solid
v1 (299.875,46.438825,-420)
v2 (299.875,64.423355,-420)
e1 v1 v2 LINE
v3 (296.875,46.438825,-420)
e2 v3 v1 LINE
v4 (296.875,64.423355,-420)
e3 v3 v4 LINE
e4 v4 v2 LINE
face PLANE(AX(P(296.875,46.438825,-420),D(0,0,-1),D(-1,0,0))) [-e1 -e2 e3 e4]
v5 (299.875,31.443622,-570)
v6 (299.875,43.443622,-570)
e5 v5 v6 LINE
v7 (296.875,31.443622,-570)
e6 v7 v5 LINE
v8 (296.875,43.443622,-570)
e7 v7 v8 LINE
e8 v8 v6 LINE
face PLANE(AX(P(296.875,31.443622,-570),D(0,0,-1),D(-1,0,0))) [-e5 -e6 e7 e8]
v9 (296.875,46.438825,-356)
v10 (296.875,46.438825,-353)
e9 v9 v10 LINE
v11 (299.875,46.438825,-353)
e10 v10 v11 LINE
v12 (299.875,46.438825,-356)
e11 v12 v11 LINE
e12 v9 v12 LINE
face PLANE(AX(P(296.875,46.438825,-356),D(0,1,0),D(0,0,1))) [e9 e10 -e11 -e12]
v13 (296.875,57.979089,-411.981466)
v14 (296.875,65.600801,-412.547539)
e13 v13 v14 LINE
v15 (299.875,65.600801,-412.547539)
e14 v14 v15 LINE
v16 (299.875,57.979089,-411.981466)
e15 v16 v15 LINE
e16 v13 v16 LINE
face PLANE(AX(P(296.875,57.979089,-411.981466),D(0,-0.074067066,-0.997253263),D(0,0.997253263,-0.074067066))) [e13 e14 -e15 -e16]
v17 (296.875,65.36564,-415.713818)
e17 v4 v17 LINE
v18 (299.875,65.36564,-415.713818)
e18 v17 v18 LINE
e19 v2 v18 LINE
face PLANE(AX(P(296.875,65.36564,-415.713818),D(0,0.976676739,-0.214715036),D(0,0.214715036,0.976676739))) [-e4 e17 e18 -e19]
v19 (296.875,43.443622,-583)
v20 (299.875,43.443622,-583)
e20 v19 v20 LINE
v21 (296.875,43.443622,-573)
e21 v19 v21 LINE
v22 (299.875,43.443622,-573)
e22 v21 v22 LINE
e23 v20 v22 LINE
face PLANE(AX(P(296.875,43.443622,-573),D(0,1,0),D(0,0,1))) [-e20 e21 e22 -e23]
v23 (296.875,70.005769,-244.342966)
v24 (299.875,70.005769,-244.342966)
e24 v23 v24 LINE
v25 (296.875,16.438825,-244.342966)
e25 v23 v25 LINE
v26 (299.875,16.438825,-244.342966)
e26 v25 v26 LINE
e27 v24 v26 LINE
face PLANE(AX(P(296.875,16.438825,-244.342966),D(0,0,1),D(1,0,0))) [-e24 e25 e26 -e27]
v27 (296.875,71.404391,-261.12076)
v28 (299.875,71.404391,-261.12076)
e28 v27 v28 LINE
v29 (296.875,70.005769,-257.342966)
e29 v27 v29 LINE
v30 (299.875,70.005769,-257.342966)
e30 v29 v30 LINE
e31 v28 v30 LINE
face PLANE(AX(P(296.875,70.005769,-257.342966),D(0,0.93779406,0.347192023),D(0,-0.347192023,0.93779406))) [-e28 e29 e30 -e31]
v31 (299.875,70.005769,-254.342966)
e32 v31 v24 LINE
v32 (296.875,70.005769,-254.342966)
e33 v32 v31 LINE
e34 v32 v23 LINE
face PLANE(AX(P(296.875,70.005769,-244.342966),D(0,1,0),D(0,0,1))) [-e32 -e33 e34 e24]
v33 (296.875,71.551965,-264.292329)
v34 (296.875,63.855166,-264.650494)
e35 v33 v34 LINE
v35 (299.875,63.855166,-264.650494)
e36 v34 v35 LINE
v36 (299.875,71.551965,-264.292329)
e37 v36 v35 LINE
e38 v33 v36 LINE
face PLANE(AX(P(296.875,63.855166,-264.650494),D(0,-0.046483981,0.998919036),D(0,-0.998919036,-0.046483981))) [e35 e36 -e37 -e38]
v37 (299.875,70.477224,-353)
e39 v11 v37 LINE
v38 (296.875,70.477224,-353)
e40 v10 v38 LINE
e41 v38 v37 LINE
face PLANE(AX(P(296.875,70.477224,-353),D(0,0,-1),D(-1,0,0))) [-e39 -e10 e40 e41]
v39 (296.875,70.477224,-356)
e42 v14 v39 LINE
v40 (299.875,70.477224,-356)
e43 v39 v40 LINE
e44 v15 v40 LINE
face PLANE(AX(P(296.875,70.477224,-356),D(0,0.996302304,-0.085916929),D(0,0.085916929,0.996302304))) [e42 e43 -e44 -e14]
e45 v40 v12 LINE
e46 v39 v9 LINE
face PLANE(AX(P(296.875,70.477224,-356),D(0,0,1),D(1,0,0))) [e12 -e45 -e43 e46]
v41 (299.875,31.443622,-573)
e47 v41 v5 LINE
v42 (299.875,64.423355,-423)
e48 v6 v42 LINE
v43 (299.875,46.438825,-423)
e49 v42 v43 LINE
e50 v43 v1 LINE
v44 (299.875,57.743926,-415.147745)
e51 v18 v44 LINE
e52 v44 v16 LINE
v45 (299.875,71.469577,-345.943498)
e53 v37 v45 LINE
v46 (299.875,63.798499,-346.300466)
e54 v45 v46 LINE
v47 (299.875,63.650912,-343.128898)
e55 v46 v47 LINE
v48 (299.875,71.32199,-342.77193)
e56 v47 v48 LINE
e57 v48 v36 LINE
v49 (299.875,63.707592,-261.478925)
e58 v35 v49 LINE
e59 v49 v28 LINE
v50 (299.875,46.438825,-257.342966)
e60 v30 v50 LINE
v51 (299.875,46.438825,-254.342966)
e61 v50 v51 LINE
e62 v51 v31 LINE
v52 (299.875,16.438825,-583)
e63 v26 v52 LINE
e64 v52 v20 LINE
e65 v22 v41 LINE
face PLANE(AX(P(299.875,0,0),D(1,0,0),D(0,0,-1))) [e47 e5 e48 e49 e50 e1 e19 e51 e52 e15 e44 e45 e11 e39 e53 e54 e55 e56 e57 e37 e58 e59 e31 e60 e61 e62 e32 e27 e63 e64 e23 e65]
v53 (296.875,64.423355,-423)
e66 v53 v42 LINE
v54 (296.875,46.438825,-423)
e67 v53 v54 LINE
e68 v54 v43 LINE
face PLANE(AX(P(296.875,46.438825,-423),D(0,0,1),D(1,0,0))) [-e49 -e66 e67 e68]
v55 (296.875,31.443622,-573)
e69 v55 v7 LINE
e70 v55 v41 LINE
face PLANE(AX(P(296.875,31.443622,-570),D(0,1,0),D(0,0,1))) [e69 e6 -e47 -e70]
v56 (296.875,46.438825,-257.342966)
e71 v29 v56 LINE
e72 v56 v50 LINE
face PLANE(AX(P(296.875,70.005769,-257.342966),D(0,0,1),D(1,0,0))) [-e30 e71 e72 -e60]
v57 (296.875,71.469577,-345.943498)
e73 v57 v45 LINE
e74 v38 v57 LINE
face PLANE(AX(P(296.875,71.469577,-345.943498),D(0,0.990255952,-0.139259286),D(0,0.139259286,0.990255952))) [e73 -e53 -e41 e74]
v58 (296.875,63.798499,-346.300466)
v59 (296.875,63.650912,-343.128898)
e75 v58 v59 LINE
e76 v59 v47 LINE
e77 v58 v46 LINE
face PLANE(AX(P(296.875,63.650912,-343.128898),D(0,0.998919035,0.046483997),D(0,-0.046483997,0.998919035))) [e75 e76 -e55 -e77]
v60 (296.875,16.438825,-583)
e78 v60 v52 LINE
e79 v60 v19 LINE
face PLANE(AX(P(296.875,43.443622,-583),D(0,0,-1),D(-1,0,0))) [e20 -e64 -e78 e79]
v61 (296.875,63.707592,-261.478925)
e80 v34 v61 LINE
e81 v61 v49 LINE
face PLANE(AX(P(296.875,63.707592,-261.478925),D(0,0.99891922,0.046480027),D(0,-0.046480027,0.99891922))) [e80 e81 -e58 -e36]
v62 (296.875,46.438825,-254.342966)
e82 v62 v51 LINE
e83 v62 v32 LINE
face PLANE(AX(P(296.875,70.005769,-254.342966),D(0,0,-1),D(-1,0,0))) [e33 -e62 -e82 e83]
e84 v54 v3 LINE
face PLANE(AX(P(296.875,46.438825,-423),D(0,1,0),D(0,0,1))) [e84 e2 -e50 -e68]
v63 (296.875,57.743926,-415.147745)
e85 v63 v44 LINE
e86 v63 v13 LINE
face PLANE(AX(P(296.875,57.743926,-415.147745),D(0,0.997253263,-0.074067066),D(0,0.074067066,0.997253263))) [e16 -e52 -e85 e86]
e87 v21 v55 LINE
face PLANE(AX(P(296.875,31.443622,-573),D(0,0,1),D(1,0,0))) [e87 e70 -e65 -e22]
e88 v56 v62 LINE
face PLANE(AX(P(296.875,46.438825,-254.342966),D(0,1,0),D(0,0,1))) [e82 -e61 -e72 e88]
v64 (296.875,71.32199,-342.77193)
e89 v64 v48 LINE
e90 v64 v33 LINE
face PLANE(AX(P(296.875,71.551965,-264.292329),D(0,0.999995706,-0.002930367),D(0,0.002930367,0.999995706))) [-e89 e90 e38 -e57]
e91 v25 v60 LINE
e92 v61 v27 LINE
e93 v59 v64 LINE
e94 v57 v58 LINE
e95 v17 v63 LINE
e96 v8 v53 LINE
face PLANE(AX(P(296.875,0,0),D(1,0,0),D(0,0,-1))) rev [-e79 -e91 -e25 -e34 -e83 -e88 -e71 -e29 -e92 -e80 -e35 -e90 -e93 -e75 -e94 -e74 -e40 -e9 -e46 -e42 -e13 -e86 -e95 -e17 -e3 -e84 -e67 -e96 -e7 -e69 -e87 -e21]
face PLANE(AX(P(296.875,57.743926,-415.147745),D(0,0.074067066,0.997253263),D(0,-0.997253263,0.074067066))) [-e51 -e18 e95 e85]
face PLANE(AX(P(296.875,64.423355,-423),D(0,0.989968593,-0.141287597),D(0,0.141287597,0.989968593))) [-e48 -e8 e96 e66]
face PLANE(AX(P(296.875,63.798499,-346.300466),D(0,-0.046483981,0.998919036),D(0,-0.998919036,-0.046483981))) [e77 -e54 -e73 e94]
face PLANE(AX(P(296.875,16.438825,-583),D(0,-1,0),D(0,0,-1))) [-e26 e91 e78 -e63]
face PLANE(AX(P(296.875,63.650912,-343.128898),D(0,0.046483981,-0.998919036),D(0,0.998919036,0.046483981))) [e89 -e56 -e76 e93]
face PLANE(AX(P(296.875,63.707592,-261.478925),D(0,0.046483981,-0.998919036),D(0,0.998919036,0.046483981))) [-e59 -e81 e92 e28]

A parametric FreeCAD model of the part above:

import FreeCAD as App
import Part
import Sketcher
Q = App.Units.Quantity

doc = App.newDocument("Part")
body = doc.addObject("PartDesign::Body", "Body")

# Sketch on YZ plane
sketch1 = body.newObject("Sketcher::SketchObject", "Sketch")
sketch1.AttachmentSupport = (doc.getObject("YZ_Plane"), [""])
sketch1.MapMode = "FlatFace"
sketch1.AttachmentOffset = App.Placement(App.Vector(0, 0, 299.875), App.Rotation())
sketch1.addGeometry([
    Part.LineSegment(App.Vector(46.4, -257.3, 0), App.Vector(46.4, -254.3, 0)),  # 0
    Part.LineSegment(App.Vector(46.4, -254.3, 0), App.Vector(70, -254.3, 0)),  # 1
    Part.LineSegment(App.Vector(70, -254.3, 0), App.Vector(70, -244.3, 0)),  # 2
    Part.LineSegment(App.Vector(70, -244.3, 0), App.Vector(16.4, -244.3, 0)),  # 3
    Part.LineSegment(App.Vector(16.4, -244.3, 0), App.Vector(16.4, -583, 0)),  # 4
    Part.LineSegment(App.Vector(16.4, -583, 0), App.Vector(43.4, -583, 0)),  # 5
    Part.LineSegment(App.Vector(43.4, -583, 0), App.Vector(43.4, -573, 0)),  # 6
    Part.LineSegment(App.Vector(43.4, -573, 0), App.Vector(31.4, -573, 0)),  # 7
    Part.LineSegment(App.Vector(31.4, -573, 0), App.Vector(31.4, -570, 0)),  # 8
    Part.LineSegment(App.Vector(31.4, -570, 0), App.Vector(43.4, -570, 0)),  # 9
    Part.LineSegment(App.Vector(43.4, -570, 0), App.Vector(64.4, -423, 0)),  # 10
    Part.LineSegment(App.Vector(64.4, -423, 0), App.Vector(46.4, -423, 0)),  # 11
    Part.LineSegment(App.Vector(46.4, -423, 0), App.Vector(46.4, -420, 0)),  # 12
    Part.LineSegment(App.Vector(46.4, -420, 0), App.Vector(64.4, -420, 0)),  # 13
    Part.LineSegment(App.Vector(64.4, -420, 0), App.Vector(65.4, -415.7, 0)),  # 14
    Part.LineSegment(App.Vector(65.4, -415.7, 0), App.Vector(57.7, -415.1, 0)),  # 15
    Part.LineSegment(App.Vector(57.7, -415.1, 0), App.Vector(58, -412, 0)),  # 16
    Part.LineSegment(App.Vector(58, -412, 0), App.Vector(65.6, -412.5, 0)),  # 17
    Part.LineSegment(App.Vector(65.6, -412.5, 0), App.Vector(70.5, -356, 0)),  # 18
    Part.LineSegment(App.Vector(70.5, -356, 0), App.Vector(46.4, -356, 0)),  # 19
    Part.LineSegment(App.Vector(46.4, -356, 0), App.Vector(46.4, -353, 0)),  # 20
    Part.LineSegment(App.Vector(46.4, -353, 0), App.Vector(70.5, -353, 0)),  # 21
    Part.LineSegment(App.Vector(70.5, -353, 0), App.Vector(71.5, -345.9, 0)),  # 22
    Part.LineSegment(App.Vector(71.5, -345.9, 0), App.Vector(63.8, -346.3, 0)),  # 23
    Part.LineSegment(App.Vector(63.8, -346.3, 0), App.Vector(63.7, -343.1, 0)),  # 24
    Part.LineSegment(App.Vector(63.7, -343.1, 0), App.Vector(71.3, -342.8, 0)),  # 25
    Part.LineSegment(App.Vector(71.3, -342.8, 0), App.Vector(71.6, -264.3, 0)),  # 26
    Part.LineSegment(App.Vector(71.6, -264.3, 0), App.Vector(63.9, -264.7, 0)),  # 27
    Part.LineSegment(App.Vector(63.9, -264.7, 0), App.Vector(63.7, -261.5, 0)),  # 28
    Part.LineSegment(App.Vector(63.7, -261.5, 0), App.Vector(71.4, -261.1, 0)),  # 29
    Part.LineSegment(App.Vector(71.4, -261.1, 0), App.Vector(70, -257.3, 0)),  # 30
    Part.LineSegment(App.Vector(70, -257.3, 0), App.Vector(46.4, -257.3, 0)),  # 31
], False)
sketch1.addConstraint([
    Sketcher.Constraint("Coincident", 0, 2, 1, 1),
    Sketcher.Constraint("Coincident", 1, 2, 2, 1),
    Sketcher.Constraint("Coincident", 2, 2, 3, 1),
    Sketcher.Constraint("Coincident", 3, 2, 4, 1),
    Sketcher.Constraint("Coincident", 4, 2, 5, 1),
    Sketcher.Constraint("Coincident", 5, 2, 6, 1),
    Sketcher.Constraint("Coincident", 6, 2, 7, 1),
    Sketcher.Constraint("Coincident", 7, 2, 8, 1),
    Sketcher.Constraint("Coincident", 8, 2, 9, 1),
    Sketcher.Constraint("Coincident", 9, 2, 10, 1),
    Sketcher.Constraint("Coincident", 10, 2, 11, 1),
    Sketcher.Constraint("Coincident", 11, 2, 12, 1),
    Sketcher.Constraint("Coincident", 12, 2, 13, 1),
    Sketcher.Constraint("Coincident", 13, 2, 14, 1),
    Sketcher.Constraint("Coincident", 14, 2, 15, 1),
    Sketcher.Constraint("Coincident", 15, 2, 16, 1),
    Sketcher.Constraint("Coincident", 16, 2, 17, 1),
    Sketcher.Constraint("Coincident", 17, 2, 18, 1),
    Sketcher.Constraint("Coincident", 18, 2, 19, 1),
    Sketcher.Constraint("Coincident", 19, 2, 20, 1),
    Sketcher.Constraint("Coincident", 20, 2, 21, 1),
    Sketcher.Constraint("Coincident", 21, 2, 22, 1),
    Sketcher.Constraint("Coincident", 22, 2, 23, 1),
    Sketcher.Constraint("Coincident", 23, 2, 24, 1),
    Sketcher.Constraint("Coincident", 24, 2, 25, 1),
    Sketcher.Constraint("Coincident", 25, 2, 26, 1),
    Sketcher.Constraint("Coincident", 26, 2, 27, 1),
    Sketcher.Constraint("Coincident", 27, 2, 28, 1),
    Sketcher.Constraint("Coincident", 28, 2, 29, 1),
    Sketcher.Constraint("Coincident", 29, 2, 30, 1),
    Sketcher.Constraint("Coincident", 30, 2, 31, 1),
    Sketcher.Constraint("Coincident", 31, 2, 0, 1),
    Sketcher.Constraint("Vertical", 0),
    Sketcher.Constraint("Horizontal", 1),
    Sketcher.Constraint("Vertical", 2),
    Sketcher.Constraint("Horizontal", 3),
    Sketcher.Constraint("Vertical", 4),
    Sketcher.Constraint("Horizontal", 5),
    Sketcher.Constraint("Vertical", 6),
    Sketcher.Constraint("Horizontal", 7),
    Sketcher.Constraint("Vertical", 8),
    Sketcher.Constraint("Horizontal", 9),
    Sketcher.Constraint("Horizontal", 11),
    Sketcher.Constraint("Vertical", 12),
    Sketcher.Constraint("Horizontal", 13),
    Sketcher.Constraint("Horizontal", 19),
    Sketcher.Constraint("Vertical", 20),
    Sketcher.Constraint("Horizontal", 21),
    Sketcher.Constraint("Horizontal", 31),
    Sketcher.Constraint("Perpendicular", 15, 16),
    Sketcher.Constraint("Perpendicular", 16, 17),
    Sketcher.Constraint("Perpendicular", 23, 24),
    Sketcher.Constraint("Perpendicular", 24, 25),
    Sketcher.Constraint("Parallel", 25, 27),
    Sketcher.Constraint("Parallel", 27, 29),
    Sketcher.Constraint("Vertical", 6, 2, 9, 2),
    Sketcher.Constraint("Vertical", 0, 2, 11, 2),
    Sketcher.Constraint("Vertical", 10, 2, 13, 2),
    Sketcher.Constraint("Vertical", 12, 2, 19, 2),
    Sketcher.Constraint("Vertical", 18, 2, 21, 2),
    Sketcher.Constraint("Vertical", 2, 2, 30, 2),
    Sketcher.Constraint("Equal", 2, 6),
    Sketcher.Constraint("Equal", 0, 8),
    Sketcher.Constraint("Equal", 8, 12),
    Sketcher.Constraint("Equal", 12, 20),
    Sketcher.Constraint("Equal", 15, 17),
    Sketcher.Constraint("Equal", 16, 24),
    Sketcher.Constraint("Equal", 23, 25),
    Sketcher.Constraint("Equal", 24, 28),
    Sketcher.Constraint("Equal", 27, 29),
    Sketcher.Constraint("DistanceX", 7, 2, 7, 1, Q("12 mm")),
    Sketcher.Constraint("DistanceY", 0, 1, 0, 2, Q("3 mm")),
    Sketcher.Constraint("DistanceY", 2, 1, 2, 2, Q("10 mm")),
    Sketcher.Constraint("DistanceY", 4, 2, -1, 1, Q("583 mm")),
    Sketcher.Constraint("DistanceY", 10, 2, -1, 1, Q("423 mm")),
    Sketcher.Constraint("DistanceY", 18, 2, -1, 1, Q("356 mm")),
    Sketcher.Constraint("DistanceX", 3, 2, 0, 2, Q("30 mm")),
    Sketcher.Constraint("Distance", 16, Q("3.175 mm")),
    Sketcher.Constraint("DistanceX", 19, 2, 19, 1, Q("24.038398 mm")),
    Sketcher.Constraint("DistanceX", 11, 2, 11, 1, Q("17.984529 mm")),
    Sketcher.Constraint("DistanceX", -1, 1, 17, 2, Q("65.600801 mm")),
    Sketcher.Constraint("DistanceX", -1, 1, 23, 2, Q("63.798499 mm")),
    Sketcher.Constraint("DistanceX", 12, 2, 15, 2, Q("11.305101 mm")),
    Sketcher.Constraint("DistanceY", 22, 2, 24, 2, Q("2.8146 mm")),
    Sketcher.Constraint("DistanceY", 25, 2, 26, 2, Q("78.479601 mm")),
    Sketcher.Constraint("DistanceX", 27, 2, 26, 2, Q("7.696799 mm")),
    Sketcher.Constraint("Distance", 10, Q("148.489559 mm")),
    Sketcher.Constraint("Distance", 18, Q("56.75741 mm")),
    Sketcher.Constraint("Distance", 23, Q("7.679379 mm")),
    Sketcher.Constraint("DistanceX", 1, 1, 1, 2, Q("23.566943 mm")),
    Sketcher.Constraint("DistanceY", 4, 2, 4, 1, Q("338.657034 mm")),
    Sketcher.Constraint("DistanceX", -1, 1, 1, 2, Q("70.005769 mm")),
    Sketcher.Constraint("DistanceX", -1, 1, 14, 2, Q("65.36564 mm")),
    Sketcher.Constraint("DistanceY", 25, 2, -1, 1, Q("342.77193 mm")),
    Sketcher.Constraint("DistanceX", -1, 1, 28, 2, Q("63.707592 mm")),
    Sketcher.Constraint("DistanceY", 29, 2, -1, 1, Q("261.12076 mm")),
])
pad1 = body.newObject("PartDesign::Pad", "Pad")
pad1.Profile = sketch1
pad1.Length = 3
pad1.Reversed = True

doc.recompute()
